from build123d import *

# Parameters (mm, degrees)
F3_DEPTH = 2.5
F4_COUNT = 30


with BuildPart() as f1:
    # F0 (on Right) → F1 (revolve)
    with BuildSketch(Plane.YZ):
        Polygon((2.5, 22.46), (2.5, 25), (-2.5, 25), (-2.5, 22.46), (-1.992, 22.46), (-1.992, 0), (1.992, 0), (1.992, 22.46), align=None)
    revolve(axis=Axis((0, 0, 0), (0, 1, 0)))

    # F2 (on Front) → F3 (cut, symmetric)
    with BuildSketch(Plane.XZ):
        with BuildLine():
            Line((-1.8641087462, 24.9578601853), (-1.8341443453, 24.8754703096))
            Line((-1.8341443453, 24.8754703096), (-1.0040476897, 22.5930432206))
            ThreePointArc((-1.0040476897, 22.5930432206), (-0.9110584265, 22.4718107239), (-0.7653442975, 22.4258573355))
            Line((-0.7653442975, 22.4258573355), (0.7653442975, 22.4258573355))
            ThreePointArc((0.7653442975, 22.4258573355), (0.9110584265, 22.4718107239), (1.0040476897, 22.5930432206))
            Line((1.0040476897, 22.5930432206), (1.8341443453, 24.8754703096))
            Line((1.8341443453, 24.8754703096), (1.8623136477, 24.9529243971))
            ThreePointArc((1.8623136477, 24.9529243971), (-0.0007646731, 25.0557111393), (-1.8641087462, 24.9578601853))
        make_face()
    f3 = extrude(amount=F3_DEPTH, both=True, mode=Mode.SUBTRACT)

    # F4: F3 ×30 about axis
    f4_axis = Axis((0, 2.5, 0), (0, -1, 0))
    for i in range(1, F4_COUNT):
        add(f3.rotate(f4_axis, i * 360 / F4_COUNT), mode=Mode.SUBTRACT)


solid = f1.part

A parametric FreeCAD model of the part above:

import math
import FreeCAD as App
import Part
import Sketcher

V = App.Vector

doc = App.newDocument("Part")
body = doc.addObject("PartDesign::Body", "Body")

# Sketch on YZ plane
sketch1 = body.newObject("Sketcher::SketchObject", "Sketch")
sketch1.AttachmentSupport = (doc.getObject("YZ_Plane"), [""])
sketch1.MapMode = "FlatFace"
sketch1.addGeometry(Part.LineSegment(V(2.5, 22.5, 0), V(2.5, 25, 0)), False)
sketch1.addGeometry(Part.LineSegment(V(2.5, 25, 0), V(-2.5, 25, 0)), False)
sketch1.addGeometry(Part.LineSegment(V(-2.5, 25, 0), V(-2.5, 22.5, 0)), False)
sketch1.addGeometry(Part.LineSegment(V(-2.5, 22.5, 0), V(-2, 22.5, 0)), False)
sketch1.addGeometry(Part.LineSegment(V(-2, 22.5, 0), V(-2, 0, 0)), False)
sketch1.addGeometry(Part.LineSegment(V(-2, 0, 0), V(2, 0, 0)), False)
sketch1.addGeometry(Part.LineSegment(V(2, 0, 0), V(2, 22.5, 0)), False)
sketch1.addGeometry(Part.LineSegment(V(2, 22.5, 0), V(2.5, 22.5, 0)), False)
sketch1.addConstraint(Sketcher.Constraint("Coincident", 0, 2, 1, 1))
sketch1.addConstraint(Sketcher.Constraint("Coincident", 1, 2, 2, 1))
sketch1.addConstraint(Sketcher.Constraint("Coincident", 2, 2, 3, 1))
sketch1.addConstraint(Sketcher.Constraint("Coincident", 3, 2, 4, 1))
sketch1.addConstraint(Sketcher.Constraint("Coincident", 4, 2, 5, 1))
sketch1.addConstraint(Sketcher.Constraint("Coincident", 5, 2, 6, 1))
sketch1.addConstraint(Sketcher.Constraint("Coincident", 6, 2, 7, 1))
sketch1.addConstraint(Sketcher.Constraint("Coincident", 7, 2, 0, 1))
sketch1.addConstraint(Sketcher.Constraint("Vertical", 0))
sketch1.addConstraint(Sketcher.Constraint("Horizontal", 1))
sketch1.addConstraint(Sketcher.Constraint("Vertical", 2))
sketch1.addConstraint(Sketcher.Constraint("Horizontal", 3))
sketch1.addConstraint(Sketcher.Constraint("Vertical", 4))
sketch1.addConstraint(Sketcher.Constraint("Horizontal", 5))
sketch1.addConstraint(Sketcher.Constraint("Vertical", 6))
sketch1.addConstraint(Sketcher.Constraint("Horizontal", 7))
sketch1.addConstraint(Sketcher.Constraint("Symmetric", 4, 2, 5, 2, -1, 1))
sketch1.addConstraint(Sketcher.Constraint("Symmetric", 2, 2, 7, 2, -2))
sketch1.addConstraint(Sketcher.Constraint("DistanceX", 1, 2, 1, 1, 5.0))
sketch1.addConstraint(Sketcher.Constraint("DistanceY", -1, 1, 0, 2, 25.0))
sketch1.addConstraint(Sketcher.Constraint("DistanceY", 0, 1, 0, 2, 2.54))
sketch1.addConstraint(Sketcher.Constraint("DistanceX", 3, 1, 3, 2, 0.508))
revolution = body.newObject("PartDesign::Revolution", "Revolution")
revolution.Profile = sketch1
revolution.ReferenceAxis = (sketch1, ["H_Axis"])
revolution.Angle = 360

# Sketch on XZ plane
sketch2 = body.newObject("Sketcher::SketchObject", "Sketch001")
sketch2.AttachmentSupport = (doc.getObject("XZ_Plane"), [""])
sketch2.MapMode = "FlatFace"
sketch2.addGeometry(Part.LineSegment(V(-1.86, 24.96, 0), V(-1.83, 24.88, 0)), False)
sketch2.addGeometry(Part.LineSegment(V(-1.83, 24.88, 0), V(-1, 22.59, 0)), False)
sketch2.addGeometry(Part.ArcOfCircle(Part.Circle(V(-0.77, 22.68, 0), V(0, 0, 1), 0.25), math.radians(-160), math.radians(-90)), False)
sketch2.addGeometry(Part.LineSegment(V(-0.77, 22.43, 0), V(0.77, 22.43, 0)), False)
sketch2.addGeometry(Part.ArcOfCircle(Part.Circle(V(0.77, 22.68, 0), V(0, 0, 1), 0.25), math.radians(-90), math.radians(-20)), False)
sketch2.addGeometry(Part.LineSegment(V(1, 22.59, 0), V(1.83, 24.88, 0)), False)
sketch2.addGeometry(Part.LineSegment(V(1.83, 24.88, 0), V(1.86, 24.95, 0)), False)
sketch2.addGeometry(Part.ArcOfCircle(Part.Circle(V(-0.02, 7.7, 0), V(0, 0, 1), 17.35), math.radians(83.76), math.radians(96.09)), False)
sketch2.addConstraint(Sketcher.Constraint("Coincident", 0, 2, 1, 1))
sketch2.addConstraint(Sketcher.Constraint("Tangent", 1, 2, 2, 1))
sketch2.addConstraint(Sketcher.Constraint("Tangent", 2, 2, 3, 1))
sketch2.addConstraint(Sketcher.Constraint("Tangent", 3, 2, 4, 1))
sketch2.addConstraint(Sketcher.Constraint("Tangent", 4, 2, 5, 1))
sketch2.addConstraint(Sketcher.Constraint("Coincident", 5, 2, 6, 1))
sketch2.addConstraint(Sketcher.Constraint("Coincident", 6, 2, 7, 1))
sketch2.addConstraint(Sketcher.Constraint("Coincident", 7, 2, 0, 1))
sketch2.addConstraint(Sketcher.Constraint("Horizontal", 3))
sketch2.addConstraint(Sketcher.Constraint("Equal", 2, 4))
sketch2.addConstraint(Sketcher.Constraint("Symmetric", 1, 2, 4, 2, -2))
sketch2.addConstraint(Sketcher.Constraint("Parallel", 0, 1))
sketch2.addConstraint(Sketcher.Constraint("Parallel", 5, 6))
sketch2.addConstraint(Sketcher.Constraint("Horizontal", 0, 2, 5, 2))
sketch2.addConstraint(Sketcher.Constraint("Radius", 2, 0.254))
sketch2.addConstraint(Sketcher.Constraint("Radius", 7, 17.352785))
sketch2.addConstraint(Sketcher.Constraint("DistanceX", 3, 1, 3, 2, 1.530689))
sketch2.addConstraint(Sketcher.Constraint("DistanceX", 0, 2, 2, 3, 1.0688))
sketch2.addConstraint(Sketcher.Constraint("DistanceX", 1, 2, 7, 3, 0.980299))
sketch2.addConstraint(Sketcher.Constraint("Distance", 0, 0.08767))
sketch2.addConstraint(Sketcher.Constraint("Distance", 1, 2.42869))
sketch2.addConstraint(Sketcher.Constraint("DistanceY", -1, 1, 7, 3, 7.702941))
pocket1 = body.newObject("PartDesign::Pocket", "Pocket")
pocket1.Profile = sketch2
pocket1.Length = 5
pocket1.Midplane = True
doc.recompute()

polarpattern = body.newObject("PartDesign::PolarPattern", "PolarPattern")
polarpattern.Originals = [pocket1]
polarpattern.Axis = (doc.getObject("Y_Axis"), [""])
polarpattern.Angle = 360
polarpattern.Occurrences = 30
body.Tip = polarpattern

doc.recompute()
